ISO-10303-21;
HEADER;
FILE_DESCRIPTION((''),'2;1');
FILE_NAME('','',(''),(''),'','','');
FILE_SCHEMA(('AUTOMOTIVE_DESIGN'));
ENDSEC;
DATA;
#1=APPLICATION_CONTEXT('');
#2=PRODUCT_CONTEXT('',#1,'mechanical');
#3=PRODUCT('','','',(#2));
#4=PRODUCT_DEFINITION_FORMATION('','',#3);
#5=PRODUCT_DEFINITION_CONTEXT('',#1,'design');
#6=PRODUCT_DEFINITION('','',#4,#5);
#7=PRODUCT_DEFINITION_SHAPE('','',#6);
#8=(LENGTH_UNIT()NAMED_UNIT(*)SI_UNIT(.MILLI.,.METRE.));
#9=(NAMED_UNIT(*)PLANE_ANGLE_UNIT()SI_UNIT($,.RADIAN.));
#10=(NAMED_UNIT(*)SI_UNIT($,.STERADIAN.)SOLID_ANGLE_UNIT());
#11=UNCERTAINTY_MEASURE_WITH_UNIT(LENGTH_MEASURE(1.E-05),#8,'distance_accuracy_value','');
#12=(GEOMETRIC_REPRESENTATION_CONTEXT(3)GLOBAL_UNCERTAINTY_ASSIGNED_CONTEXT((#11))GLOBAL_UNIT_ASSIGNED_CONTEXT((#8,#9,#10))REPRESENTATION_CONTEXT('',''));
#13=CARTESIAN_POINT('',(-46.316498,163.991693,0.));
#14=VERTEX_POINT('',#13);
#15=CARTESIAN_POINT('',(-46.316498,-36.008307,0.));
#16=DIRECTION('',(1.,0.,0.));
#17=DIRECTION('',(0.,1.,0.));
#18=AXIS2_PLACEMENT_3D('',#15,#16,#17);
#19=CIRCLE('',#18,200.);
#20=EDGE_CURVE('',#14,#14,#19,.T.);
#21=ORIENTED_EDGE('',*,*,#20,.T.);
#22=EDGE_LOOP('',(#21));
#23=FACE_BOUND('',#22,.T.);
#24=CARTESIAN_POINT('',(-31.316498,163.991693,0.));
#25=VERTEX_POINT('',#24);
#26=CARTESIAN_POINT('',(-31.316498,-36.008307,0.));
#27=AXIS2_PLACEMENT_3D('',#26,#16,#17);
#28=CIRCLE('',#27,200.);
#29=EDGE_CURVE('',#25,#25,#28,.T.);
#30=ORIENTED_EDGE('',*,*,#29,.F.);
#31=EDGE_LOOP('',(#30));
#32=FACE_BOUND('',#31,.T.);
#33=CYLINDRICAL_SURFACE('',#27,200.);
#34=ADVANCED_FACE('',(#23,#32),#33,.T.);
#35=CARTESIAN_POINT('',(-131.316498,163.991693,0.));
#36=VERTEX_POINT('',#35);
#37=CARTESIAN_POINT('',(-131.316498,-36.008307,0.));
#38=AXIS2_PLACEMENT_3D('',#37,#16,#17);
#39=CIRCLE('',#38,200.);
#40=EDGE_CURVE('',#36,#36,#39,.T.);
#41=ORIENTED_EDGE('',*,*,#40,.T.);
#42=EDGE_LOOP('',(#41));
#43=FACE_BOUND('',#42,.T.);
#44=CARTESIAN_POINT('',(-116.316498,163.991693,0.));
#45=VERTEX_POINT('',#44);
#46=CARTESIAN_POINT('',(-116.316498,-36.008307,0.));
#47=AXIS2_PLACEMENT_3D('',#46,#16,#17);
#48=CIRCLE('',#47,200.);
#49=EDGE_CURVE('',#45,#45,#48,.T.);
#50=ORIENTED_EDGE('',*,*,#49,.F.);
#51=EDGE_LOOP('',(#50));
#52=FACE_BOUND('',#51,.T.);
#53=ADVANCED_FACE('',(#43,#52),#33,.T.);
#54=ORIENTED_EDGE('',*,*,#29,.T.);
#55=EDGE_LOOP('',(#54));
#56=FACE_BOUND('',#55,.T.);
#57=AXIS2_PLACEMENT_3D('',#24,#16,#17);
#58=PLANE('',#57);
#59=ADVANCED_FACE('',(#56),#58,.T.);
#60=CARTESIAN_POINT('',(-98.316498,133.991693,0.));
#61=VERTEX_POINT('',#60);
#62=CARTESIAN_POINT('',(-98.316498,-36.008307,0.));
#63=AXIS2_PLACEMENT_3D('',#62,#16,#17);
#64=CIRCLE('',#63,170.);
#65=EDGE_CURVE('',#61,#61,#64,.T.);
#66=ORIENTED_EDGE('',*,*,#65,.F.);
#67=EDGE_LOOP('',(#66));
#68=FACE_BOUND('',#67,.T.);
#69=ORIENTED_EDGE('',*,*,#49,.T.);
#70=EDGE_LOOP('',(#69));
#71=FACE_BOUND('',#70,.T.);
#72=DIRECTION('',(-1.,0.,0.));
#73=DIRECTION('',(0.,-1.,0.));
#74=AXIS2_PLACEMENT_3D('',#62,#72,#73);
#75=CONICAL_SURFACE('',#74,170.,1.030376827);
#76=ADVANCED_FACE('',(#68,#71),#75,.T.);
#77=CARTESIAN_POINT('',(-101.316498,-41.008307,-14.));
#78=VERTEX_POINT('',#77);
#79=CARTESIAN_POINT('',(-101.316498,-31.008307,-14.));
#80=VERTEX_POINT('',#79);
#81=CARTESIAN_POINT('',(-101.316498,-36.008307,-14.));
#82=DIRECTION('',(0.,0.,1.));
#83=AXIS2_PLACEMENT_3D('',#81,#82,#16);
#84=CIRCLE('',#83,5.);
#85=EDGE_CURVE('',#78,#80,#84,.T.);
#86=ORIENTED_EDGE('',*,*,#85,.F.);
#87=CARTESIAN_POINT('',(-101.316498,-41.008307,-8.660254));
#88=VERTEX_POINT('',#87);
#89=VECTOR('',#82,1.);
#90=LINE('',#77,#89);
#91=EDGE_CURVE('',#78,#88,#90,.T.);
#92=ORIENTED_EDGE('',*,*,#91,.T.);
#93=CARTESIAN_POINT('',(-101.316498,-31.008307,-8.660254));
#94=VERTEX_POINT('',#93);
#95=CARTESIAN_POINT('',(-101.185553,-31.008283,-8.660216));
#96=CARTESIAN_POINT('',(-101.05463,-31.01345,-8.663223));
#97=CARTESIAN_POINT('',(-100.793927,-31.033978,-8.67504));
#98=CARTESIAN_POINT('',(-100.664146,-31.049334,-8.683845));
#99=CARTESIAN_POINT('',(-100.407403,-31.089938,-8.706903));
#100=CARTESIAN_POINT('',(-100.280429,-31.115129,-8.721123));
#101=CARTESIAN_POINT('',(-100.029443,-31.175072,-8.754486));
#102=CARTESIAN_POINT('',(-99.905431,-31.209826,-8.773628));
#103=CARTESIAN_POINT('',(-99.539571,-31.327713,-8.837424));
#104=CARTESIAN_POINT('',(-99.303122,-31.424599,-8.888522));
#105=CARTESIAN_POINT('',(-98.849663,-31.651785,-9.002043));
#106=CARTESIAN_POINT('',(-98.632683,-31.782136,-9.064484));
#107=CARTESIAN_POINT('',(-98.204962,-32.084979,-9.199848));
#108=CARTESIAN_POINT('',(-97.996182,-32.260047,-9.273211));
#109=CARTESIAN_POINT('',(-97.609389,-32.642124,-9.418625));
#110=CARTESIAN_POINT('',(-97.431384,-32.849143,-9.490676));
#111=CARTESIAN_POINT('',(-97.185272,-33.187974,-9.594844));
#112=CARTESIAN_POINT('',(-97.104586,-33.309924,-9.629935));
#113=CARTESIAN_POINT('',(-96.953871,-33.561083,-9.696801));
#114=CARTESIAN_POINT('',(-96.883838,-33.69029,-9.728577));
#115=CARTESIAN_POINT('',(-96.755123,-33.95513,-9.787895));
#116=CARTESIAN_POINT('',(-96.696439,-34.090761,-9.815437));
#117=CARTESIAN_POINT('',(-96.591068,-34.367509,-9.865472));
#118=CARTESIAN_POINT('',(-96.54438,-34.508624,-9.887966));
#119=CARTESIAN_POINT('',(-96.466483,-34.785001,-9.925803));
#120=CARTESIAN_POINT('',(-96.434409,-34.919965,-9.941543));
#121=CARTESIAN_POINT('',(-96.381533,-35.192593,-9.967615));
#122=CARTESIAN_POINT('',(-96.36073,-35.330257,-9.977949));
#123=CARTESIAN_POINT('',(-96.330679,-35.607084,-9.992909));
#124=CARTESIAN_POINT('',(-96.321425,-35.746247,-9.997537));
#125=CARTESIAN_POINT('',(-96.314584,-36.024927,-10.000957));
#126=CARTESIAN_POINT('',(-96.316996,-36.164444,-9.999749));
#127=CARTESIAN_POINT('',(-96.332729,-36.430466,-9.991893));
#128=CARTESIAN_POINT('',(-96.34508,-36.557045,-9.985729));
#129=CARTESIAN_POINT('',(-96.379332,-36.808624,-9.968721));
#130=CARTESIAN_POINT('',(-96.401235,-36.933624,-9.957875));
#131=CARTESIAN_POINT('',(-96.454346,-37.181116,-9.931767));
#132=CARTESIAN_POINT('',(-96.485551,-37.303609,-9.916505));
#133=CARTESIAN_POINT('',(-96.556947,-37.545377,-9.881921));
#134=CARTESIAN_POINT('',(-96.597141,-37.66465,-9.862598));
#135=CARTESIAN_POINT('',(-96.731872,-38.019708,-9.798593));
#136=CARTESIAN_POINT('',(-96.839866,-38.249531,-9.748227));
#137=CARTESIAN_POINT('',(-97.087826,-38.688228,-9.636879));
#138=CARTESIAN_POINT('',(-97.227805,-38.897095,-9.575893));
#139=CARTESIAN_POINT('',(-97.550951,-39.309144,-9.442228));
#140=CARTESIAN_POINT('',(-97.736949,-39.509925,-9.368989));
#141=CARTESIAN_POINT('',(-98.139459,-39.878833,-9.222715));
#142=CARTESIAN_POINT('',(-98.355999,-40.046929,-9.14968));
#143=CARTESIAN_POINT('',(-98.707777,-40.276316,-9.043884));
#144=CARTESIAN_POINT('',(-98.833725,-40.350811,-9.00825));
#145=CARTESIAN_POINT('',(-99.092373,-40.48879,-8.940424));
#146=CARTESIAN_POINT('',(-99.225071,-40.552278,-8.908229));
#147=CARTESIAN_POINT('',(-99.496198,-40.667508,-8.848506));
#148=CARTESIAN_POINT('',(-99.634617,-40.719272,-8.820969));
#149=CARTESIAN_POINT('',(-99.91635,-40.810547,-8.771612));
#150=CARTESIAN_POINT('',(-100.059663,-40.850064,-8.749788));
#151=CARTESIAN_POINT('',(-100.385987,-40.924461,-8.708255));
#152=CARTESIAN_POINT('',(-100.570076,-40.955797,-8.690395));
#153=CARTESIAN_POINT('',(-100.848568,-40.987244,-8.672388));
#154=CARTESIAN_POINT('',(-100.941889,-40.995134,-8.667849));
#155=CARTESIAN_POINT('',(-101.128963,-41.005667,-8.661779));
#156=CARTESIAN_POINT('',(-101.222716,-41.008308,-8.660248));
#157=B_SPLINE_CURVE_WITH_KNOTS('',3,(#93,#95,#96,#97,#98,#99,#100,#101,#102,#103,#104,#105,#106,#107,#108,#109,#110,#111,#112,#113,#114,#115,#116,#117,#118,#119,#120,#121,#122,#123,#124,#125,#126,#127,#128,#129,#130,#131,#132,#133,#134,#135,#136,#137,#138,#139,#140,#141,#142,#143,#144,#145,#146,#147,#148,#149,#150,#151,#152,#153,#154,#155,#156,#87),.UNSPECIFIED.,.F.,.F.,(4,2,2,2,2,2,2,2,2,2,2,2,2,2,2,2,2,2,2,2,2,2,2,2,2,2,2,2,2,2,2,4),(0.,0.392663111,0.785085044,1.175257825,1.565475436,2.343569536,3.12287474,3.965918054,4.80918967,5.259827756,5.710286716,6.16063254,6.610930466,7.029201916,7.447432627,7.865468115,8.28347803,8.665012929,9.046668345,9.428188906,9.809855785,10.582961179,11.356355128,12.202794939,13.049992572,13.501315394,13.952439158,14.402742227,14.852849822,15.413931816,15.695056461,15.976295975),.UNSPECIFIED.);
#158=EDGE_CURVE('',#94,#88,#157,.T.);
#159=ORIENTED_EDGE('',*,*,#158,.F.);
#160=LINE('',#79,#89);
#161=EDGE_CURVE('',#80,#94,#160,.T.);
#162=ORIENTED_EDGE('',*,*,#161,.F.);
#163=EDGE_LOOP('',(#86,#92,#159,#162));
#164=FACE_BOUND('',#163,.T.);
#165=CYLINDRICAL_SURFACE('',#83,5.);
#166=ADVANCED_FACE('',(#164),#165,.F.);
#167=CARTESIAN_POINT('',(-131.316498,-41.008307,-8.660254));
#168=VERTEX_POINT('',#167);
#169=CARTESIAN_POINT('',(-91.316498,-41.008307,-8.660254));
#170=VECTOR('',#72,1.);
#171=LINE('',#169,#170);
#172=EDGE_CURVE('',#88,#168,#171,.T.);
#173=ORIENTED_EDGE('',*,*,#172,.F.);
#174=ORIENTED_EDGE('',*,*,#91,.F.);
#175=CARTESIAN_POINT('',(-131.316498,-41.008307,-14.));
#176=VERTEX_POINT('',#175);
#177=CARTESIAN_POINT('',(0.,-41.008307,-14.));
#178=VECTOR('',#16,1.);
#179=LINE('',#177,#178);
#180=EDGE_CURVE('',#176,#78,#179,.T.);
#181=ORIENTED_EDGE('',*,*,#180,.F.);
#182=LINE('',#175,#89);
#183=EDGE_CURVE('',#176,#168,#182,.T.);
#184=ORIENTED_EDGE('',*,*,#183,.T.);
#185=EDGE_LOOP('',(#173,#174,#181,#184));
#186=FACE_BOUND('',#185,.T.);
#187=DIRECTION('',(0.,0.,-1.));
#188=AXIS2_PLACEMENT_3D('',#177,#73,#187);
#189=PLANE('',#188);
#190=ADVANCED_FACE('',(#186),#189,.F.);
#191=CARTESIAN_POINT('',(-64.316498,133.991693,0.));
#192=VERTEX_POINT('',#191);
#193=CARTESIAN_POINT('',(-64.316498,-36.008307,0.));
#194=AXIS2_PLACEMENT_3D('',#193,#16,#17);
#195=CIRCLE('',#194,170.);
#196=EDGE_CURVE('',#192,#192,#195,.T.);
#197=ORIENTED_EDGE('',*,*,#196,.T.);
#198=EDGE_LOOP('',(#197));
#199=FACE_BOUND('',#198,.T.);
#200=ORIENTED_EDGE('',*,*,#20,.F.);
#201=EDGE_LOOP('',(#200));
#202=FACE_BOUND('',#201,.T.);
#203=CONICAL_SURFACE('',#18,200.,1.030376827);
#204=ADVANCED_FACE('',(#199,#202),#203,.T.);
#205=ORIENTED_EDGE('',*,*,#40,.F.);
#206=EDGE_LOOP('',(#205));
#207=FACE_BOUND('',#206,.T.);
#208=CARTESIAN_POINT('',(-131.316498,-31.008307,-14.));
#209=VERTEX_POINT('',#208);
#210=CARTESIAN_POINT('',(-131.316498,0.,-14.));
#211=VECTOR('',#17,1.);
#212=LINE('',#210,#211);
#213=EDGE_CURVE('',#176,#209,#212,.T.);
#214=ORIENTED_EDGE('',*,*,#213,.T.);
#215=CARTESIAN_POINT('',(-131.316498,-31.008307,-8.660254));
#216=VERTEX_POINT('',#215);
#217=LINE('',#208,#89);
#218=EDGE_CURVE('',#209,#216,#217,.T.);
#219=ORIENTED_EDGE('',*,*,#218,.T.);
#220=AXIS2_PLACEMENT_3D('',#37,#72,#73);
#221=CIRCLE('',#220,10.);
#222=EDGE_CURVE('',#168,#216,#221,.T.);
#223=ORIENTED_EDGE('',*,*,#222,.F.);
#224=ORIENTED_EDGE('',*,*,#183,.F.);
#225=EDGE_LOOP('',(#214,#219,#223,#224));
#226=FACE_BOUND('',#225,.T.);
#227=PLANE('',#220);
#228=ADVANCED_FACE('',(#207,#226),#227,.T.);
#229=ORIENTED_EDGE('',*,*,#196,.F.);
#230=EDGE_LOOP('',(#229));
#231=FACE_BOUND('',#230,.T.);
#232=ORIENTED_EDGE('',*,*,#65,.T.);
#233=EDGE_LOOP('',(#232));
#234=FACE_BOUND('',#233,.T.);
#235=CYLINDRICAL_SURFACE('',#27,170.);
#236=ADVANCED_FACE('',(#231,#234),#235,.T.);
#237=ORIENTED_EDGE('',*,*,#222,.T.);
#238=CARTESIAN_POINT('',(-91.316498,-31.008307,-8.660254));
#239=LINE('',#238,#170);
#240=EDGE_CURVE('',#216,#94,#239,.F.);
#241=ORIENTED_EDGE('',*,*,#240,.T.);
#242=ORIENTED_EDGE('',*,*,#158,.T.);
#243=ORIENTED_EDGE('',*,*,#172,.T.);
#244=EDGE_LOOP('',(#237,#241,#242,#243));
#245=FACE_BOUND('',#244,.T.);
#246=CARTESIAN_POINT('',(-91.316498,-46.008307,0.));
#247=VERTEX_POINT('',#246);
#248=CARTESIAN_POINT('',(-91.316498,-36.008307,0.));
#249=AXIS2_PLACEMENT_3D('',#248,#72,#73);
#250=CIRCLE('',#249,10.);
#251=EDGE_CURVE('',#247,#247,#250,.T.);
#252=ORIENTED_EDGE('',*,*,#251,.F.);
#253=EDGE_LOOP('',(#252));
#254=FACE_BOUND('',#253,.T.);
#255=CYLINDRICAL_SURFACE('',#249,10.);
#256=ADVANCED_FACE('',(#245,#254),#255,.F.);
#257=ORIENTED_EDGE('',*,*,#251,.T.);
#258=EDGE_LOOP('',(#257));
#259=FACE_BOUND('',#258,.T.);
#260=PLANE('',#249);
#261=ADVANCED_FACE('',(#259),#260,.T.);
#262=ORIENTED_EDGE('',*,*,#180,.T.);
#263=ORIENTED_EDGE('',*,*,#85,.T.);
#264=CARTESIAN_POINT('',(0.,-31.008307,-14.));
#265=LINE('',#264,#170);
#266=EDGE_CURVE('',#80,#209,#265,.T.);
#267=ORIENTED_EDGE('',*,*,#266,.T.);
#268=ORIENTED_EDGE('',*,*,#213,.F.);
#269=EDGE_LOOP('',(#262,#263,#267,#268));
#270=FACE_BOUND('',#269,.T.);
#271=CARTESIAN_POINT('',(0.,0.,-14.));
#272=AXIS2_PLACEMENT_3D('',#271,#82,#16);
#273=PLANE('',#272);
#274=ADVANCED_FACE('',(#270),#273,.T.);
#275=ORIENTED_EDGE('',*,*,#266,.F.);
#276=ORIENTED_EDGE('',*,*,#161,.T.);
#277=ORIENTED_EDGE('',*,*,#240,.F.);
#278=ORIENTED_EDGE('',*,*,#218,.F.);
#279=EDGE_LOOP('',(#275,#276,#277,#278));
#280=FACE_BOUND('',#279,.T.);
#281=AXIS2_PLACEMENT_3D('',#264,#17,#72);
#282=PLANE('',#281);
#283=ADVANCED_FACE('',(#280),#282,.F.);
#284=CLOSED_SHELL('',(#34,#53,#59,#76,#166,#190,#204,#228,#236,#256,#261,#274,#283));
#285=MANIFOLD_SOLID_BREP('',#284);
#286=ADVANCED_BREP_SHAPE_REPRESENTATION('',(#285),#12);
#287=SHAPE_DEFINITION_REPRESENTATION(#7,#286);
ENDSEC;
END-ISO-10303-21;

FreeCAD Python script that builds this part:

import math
import FreeCAD as App
import Part
import Sketcher
Q = App.Units.Quantity

doc = App.newDocument("Part")
body = doc.addObject("PartDesign::Body", "Body")

# Sketch on XY plane
sketch1 = body.newObject("Sketcher::SketchObject", "Sketch")
sketch1.AttachmentSupport = (doc.getObject("XY_Plane"), [""])
sketch1.MapMode = "FlatFace"
sketch1.addGeometry([
    Part.LineSegment(App.Vector(-131.316498, 163.991693, 0), App.Vector(-131.316498, -36.008307, 0)),  # 0
    Part.LineSegment(App.Vector(-131.316498, -36.008307, 0), App.Vector(-31.316498, -36.008307, 0)),  # 1
    Part.LineSegment(App.Vector(-31.316498, -36.008307, 0), App.Vector(-31.316498, 163.991693, 0)),  # 2
    Part.LineSegment(App.Vector(-31.316498, 163.991693, 0), App.Vector(-46.316498, 163.991693, 0)),  # 3
    Part.LineSegment(App.Vector(-46.316498, 163.991693, 0), App.Vector(-64.316498, 133.991693, 0)),  # 4
    Part.LineSegment(App.Vector(-64.316498, 133.991693, 0), App.Vector(-98.316498, 133.991693, 0)),  # 5
    Part.LineSegment(App.Vector(-98.316498, 133.991693, 0), App.Vector(-116.316498, 163.991693, 0)),  # 6
    Part.LineSegment(App.Vector(-116.316498, 163.991693, 0), App.Vector(-131.316498, 163.991693, 0)),  # 7
], False)
sketch1.addGeometry(Part.LineSegment(App.Vector(-31.316498, -36.008307, 0), App.Vector(-131.316498, -36.008307, 0)), True)  # axis
sketch1.addConstraint([
    Sketcher.Constraint("Coincident", 0, 2, 1, 1),
    Sketcher.Constraint("Coincident", 1, 2, 2, 1),
    Sketcher.Constraint("Coincident", 2, 2, 3, 1),
    Sketcher.Constraint("Coincident", 3, 2, 4, 1),
    Sketcher.Constraint("Coincident", 4, 2, 5, 1),
    Sketcher.Constraint("Coincident", 5, 2, 6, 1),
    Sketcher.Constraint("Coincident", 6, 2, 7, 1),
    Sketcher.Constraint("Coincident", 7, 2, 0, 1),
    Sketcher.Constraint("Vertical", 0),
    Sketcher.Constraint("Horizontal", 1),
    Sketcher.Constraint("Vertical", 2),
    Sketcher.Constraint("Horizontal", 3),
    Sketcher.Constraint("Horizontal", 5),
    Sketcher.Constraint("Horizontal", 7),
    Sketcher.Constraint("Horizontal", 8),
    Sketcher.Constraint("Coincident", 8, 1, 1, 2),
    Sketcher.Constraint("Horizontal", 3, 2, 6, 2),
    Sketcher.Constraint("Vertical", 7, 2, 8, 2),
    Sketcher.Constraint("Equal", 3, 7),
    Sketcher.Constraint("Equal", 4, 6),
    Sketcher.Constraint("DistanceX", 1, 1, 1, 2, Q("100 mm")),
    Sketcher.Constraint("DistanceX", 3, 2, 3, 1, Q("15 mm")),
    Sketcher.Constraint("DistanceX", 5, 2, 5, 1, Q("34 mm")),
    Sketcher.Constraint("DistanceY", 0, 2, 0, 1, Q("200 mm")),
    Sketcher.Constraint("DistanceY", 4, 2, 3, 2, Q("30 mm")),
    Sketcher.Constraint("DistanceX", 0, 2, -1, 1, Q("131.316498 mm")),
    Sketcher.Constraint("DistanceY", 0, 2, -1, 1, Q("36.008307 mm")),
])
revolution = body.newObject("PartDesign::Revolution", "Revolution")
revolution.Profile = sketch1
revolution.ReferenceAxis = (sketch1, ["Axis0"])
revolution.Angle = 360

# Sketch on YZ plane
sketch2 = body.newObject("Sketcher::SketchObject", "Sketch001")
sketch2.AttachmentSupport = (doc.getObject("YZ_Plane"), [""])
sketch2.MapMode = "FlatFace"
sketch2.AttachmentOffset = App.Placement(App.Vector(0, 0, -131.316498), App.Rotation())
sketch2.addGeometry(Part.Circle(App.Vector(-36.008307, 0, 0), App.Vector(0, 0, 1), 10), False)
sketch2.addConstraint([
    Sketcher.Constraint("PointOnObject", 0, 3, -1),
    Sketcher.Constraint("Diameter", 0, Q("20 mm")),
    Sketcher.Constraint("DistanceX", 0, 3, -1, 1, Q("36.008307 mm")),
])
pocket1 = body.newObject("PartDesign::Pocket", "Pocket")
pocket1.Profile = sketch2
pocket1.Length = 40
pocket1.Reversed = True

# Sketch on XY plane
sketch3 = body.newObject("Sketcher::SketchObject", "Sketch002")
sketch3.AttachmentSupport = (doc.getObject("XY_Plane"), [""])
sketch3.MapMode = "FlatFace"
sketch3.addGeometry([
    Part.ArcOfCircle(Part.Circle(App.Vector(-101.316498, -36.008307, 0), App.Vector(0, 0, 1), 5), math.radians(0), math.radians(90)),  # 0
    Part.LineSegment(App.Vector(-101.316498, -31.008307, 0), App.Vector(-121.316498, -31.008307, 0)),  # 1
    Part.ArcOfCircle(Part.Circle(App.Vector(-121.316498, -36.008307, 0), App.Vector(0, 0, 1), 5), math.radians(90), math.radians(270)),  # 2
    Part.LineSegment(App.Vector(-121.316498, -41.008307, 0), App.Vector(-101.316498, -41.008307, 0)),  # 3
    Part.ArcOfCircle(Part.Circle(App.Vector(-101.316498, -36.008307, 0), App.Vector(0, 0, 1), 5), math.radians(-90), math.radians(0)),  # 4
], False)
sketch3.addConstraint([
    Sketcher.Constraint("Tangent", 0, 2, 1, 1),
    Sketcher.Constraint("Tangent", 1, 2, 2, 1),
    Sketcher.Constraint("Tangent", 2, 2, 3, 1),
    Sketcher.Constraint("Tangent", 3, 2, 4, 1),
    Sketcher.Constraint("Tangent", 4, 2, 0, 1),
    Sketcher.Constraint("Horizontal", 1),
    Sketcher.Constraint("Horizontal", 3),
    Sketcher.Constraint("Equal", 0, 2),
    Sketcher.Constraint("Horizontal", 2, 3, 4, 2),
    Sketcher.Constraint("Radius", 0, Q("5 mm")),
    Sketcher.Constraint("DistanceX", 1, 2, 1, 1, Q("20 mm")),
    Sketcher.Constraint("DistanceX", 0, 3, -1, 1, Q("101.316498 mm")),
    Sketcher.Constraint("DistanceY", 0, 3, -1, 1, Q("36.008307 mm")),
])
pocket2 = body.newObject("PartDesign::Pocket", "Pocket001")
pocket2.Profile = sketch3
pocket2.Length = 14

# Sketch on XY plane
sketch4 = body.newObject("Sketcher::SketchObject", "Sketch003")
sketch4.AttachmentSupport = (doc.getObject("XY_Plane"), [""])
sketch4.MapMode = "FlatFace"
sketch4.addGeometry([
    Part.ArcOfCircle(Part.Circle(App.Vector(-121.316498, -36.008307, 0), App.Vector(0, 0, 1), 5), math.radians(90), math.radians(270)),
    Part.LineSegment(App.Vector(-121.316498, -31.008307, 0), App.Vector(-131.316498, -31.008307, 0)),
    Part.LineSegment(App.Vector(-131.316498, -31.008307, 0), App.Vector(-131.316498, -41.008307, 0)),
    Part.LineSegment(App.Vector(-131.316498, -41.008307, 0), App.Vector(-121.316498, -41.008307, 0)),
], False)
sketch4.addConstraint([
    Sketcher.Constraint("Tangent", 0, 1, 1, 1),
    Sketcher.Constraint("Coincident", 1, 2, 2, 1),
    Sketcher.Constraint("Coincident", 2, 2, 3, 1),
    Sketcher.Constraint("Tangent", 3, 2, 0, 2),
    Sketcher.Constraint("Horizontal", 1),
    Sketcher.Constraint("Vertical", 2),
    Sketcher.Constraint("Horizontal", 3),
    Sketcher.Constraint("Equal", 3, 2),
    Sketcher.Constraint("Radius", 0, Q("5 mm")),
    Sketcher.Constraint("DistanceX", 0, 3, -1, 1, Q("121.316498 mm")),
    Sketcher.Constraint("DistanceY", 0, 3, -1, 1, Q("36.008307 mm")),
])
pocket3 = body.newObject("PartDesign::Pocket", "Pocket002")
pocket3.Profile = sketch4
pocket3.Length = 14

doc.recompute()
